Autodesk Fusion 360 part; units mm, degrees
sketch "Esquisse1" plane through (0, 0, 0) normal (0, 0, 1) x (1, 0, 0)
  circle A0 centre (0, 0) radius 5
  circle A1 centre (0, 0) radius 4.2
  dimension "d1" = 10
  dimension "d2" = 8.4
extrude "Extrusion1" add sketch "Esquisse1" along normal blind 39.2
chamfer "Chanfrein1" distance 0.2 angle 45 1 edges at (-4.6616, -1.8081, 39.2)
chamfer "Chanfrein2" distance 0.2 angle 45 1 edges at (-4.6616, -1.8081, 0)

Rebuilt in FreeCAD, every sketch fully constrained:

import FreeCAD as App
import Part
import Sketcher
from FreeCAD import Vector
Q = App.Units.Quantity


def edges_at(feature, points):
    """Names of the edges that pass closest to the given points."""
    edges = feature.Shape.Edges
    near = lambda p: min(range(len(edges)), key=lambda i: edges[i].distToShape(Part.Vertex(*p))[0])
    return sorted({f"Edge{near(p) + 1}" for p in points})

doc = App.newDocument("Part")
body = doc.addObject("PartDesign::Body", "Body")

sketch1 = body.newObject("Sketcher::SketchObject", "Sketch")
sketch1.AttachmentSupport = (doc.getObject("XY_Plane"), [""])
sketch1.MapMode = "FlatFace"
sketch1.addGeometry([
    Part.Circle(Vector(0, 0, 0), Vector(0, 0, 1), 5),
    Part.Circle(Vector(0, 0, 0), Vector(0, 0, 1), 4.2),
], False)
sketch1.addConstraint([
    Sketcher.Constraint("Coincident", 0, 3, -1, 1),
    Sketcher.Constraint("Coincident", 1, 3, -1, 1),
    Sketcher.Constraint("Diameter", 0, Q("10 mm")),
    Sketcher.Constraint("Diameter", 1, Q("8.4 mm")),
])
pad1 = body.newObject("PartDesign::Pad", "Pad")
pad1.Profile = sketch1
pad1.Length = 39.2
doc.recompute()

chamfer = body.newObject("PartDesign::Chamfer", "Chamfer")
chamfer.Base = (pad1, edges_at(pad1, [(-4.662, -1.808, 39.2)]))
chamfer.Size = 0.2
doc.recompute()

chamfer2 = body.newObject("PartDesign::Chamfer", "Chamfer001")
chamfer2.Base = (chamfer, edges_at(chamfer, [(-4.662, -1.808, 0)]))
chamfer2.Size = 0.2

doc.recompute()
